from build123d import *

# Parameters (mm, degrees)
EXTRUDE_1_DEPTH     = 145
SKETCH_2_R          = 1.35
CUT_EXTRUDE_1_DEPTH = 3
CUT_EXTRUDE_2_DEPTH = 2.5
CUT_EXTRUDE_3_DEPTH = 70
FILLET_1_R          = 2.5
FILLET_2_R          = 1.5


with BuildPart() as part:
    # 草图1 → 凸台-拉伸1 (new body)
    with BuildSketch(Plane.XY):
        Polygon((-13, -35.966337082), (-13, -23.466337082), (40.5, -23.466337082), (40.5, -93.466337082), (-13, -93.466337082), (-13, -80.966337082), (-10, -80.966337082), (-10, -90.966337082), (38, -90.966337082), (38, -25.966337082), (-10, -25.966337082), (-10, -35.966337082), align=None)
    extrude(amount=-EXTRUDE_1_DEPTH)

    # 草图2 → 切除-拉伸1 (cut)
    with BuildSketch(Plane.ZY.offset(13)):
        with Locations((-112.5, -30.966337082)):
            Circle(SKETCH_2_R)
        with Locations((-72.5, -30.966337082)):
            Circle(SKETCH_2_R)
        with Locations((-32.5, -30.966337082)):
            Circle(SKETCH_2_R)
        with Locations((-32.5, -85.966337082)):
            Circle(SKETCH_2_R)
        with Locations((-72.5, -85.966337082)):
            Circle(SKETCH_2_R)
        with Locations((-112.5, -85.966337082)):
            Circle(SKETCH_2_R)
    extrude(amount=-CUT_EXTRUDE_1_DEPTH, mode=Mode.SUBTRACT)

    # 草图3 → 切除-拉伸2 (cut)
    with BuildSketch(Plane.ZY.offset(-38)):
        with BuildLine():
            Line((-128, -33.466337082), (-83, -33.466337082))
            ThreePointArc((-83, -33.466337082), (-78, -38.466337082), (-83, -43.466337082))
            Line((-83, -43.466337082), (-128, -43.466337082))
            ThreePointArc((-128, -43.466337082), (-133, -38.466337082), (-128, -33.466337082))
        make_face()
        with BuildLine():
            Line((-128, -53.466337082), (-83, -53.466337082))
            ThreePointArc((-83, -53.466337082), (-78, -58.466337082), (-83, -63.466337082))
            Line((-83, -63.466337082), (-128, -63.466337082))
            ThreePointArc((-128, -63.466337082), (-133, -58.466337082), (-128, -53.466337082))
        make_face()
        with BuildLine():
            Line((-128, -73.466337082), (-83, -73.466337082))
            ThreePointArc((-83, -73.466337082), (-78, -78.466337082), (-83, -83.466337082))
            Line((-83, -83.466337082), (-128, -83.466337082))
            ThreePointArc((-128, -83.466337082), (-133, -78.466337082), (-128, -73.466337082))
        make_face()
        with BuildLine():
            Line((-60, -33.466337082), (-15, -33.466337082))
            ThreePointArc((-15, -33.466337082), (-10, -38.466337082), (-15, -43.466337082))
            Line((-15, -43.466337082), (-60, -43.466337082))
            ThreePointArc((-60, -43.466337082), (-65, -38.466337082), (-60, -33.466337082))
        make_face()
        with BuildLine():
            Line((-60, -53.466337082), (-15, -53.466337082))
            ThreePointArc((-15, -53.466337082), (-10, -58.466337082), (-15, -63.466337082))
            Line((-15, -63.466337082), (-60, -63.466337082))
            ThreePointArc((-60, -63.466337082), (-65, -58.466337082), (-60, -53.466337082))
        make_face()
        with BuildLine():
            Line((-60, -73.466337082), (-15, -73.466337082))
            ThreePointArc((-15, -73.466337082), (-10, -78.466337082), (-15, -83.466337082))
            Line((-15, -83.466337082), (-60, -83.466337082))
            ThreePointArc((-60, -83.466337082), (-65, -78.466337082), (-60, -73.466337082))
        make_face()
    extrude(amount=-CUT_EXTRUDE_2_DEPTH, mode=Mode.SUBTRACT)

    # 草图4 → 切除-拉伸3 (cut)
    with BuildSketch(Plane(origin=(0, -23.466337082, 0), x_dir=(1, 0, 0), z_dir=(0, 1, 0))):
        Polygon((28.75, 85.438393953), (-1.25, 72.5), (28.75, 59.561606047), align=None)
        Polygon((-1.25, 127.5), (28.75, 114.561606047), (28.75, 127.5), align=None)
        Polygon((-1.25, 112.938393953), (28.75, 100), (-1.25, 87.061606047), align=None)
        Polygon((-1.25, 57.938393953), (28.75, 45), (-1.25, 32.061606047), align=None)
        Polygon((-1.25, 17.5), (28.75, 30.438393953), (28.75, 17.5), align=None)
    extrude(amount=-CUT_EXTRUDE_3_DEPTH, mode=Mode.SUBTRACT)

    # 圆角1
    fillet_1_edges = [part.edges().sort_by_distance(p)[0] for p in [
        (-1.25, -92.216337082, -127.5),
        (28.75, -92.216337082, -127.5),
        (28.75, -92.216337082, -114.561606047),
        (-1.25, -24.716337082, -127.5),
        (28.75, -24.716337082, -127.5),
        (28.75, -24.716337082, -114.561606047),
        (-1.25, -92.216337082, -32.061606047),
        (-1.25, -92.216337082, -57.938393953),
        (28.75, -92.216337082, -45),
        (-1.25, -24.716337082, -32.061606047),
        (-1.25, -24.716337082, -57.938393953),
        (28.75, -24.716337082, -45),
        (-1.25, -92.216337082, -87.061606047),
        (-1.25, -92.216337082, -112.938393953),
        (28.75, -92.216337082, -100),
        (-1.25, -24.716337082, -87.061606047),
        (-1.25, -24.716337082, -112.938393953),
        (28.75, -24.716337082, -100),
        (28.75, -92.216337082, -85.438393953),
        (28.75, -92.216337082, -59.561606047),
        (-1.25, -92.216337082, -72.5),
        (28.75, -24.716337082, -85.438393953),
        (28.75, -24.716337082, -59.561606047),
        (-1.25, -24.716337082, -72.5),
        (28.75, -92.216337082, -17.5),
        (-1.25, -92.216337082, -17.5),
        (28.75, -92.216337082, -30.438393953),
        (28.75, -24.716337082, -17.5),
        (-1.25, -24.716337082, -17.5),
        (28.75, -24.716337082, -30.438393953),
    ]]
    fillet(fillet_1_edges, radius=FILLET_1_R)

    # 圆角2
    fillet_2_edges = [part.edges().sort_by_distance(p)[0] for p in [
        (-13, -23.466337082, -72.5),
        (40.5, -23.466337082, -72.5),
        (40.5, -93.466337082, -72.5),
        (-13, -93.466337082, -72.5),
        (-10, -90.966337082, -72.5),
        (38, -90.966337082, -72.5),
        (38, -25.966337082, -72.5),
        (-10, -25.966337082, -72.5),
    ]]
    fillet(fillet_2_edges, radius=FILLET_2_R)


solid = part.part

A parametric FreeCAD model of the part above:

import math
import FreeCAD as App
import Part
import Sketcher
Q = App.Units.Quantity


def edges_at(feature, points):
    """Names of the edges that pass closest to the given points."""
    edges = feature.Shape.Edges
    near = lambda p: min(range(len(edges)), key=lambda i: edges[i].distToShape(Part.Vertex(*p))[0])
    return sorted({f"Edge{near(p) + 1}" for p in points})

doc = App.newDocument("Part")
body = doc.addObject("PartDesign::Body", "Body")

# Sketch on XY plane
sketch1 = body.newObject("Sketcher::SketchObject", "Sketch")
sketch1.AttachmentSupport = (doc.getObject("XY_Plane"), [""])
sketch1.MapMode = "FlatFace"
sketch1.addGeometry(Part.LineSegment(App.Vector(-13, -23.5, 0), App.Vector(-13, -36, 0)), False)
sketch1.addGeometry(Part.LineSegment(App.Vector(-13, -36, 0), App.Vector(-10, -36, 0)), False)
sketch1.addGeometry(Part.LineSegment(App.Vector(-10, -36, 0), App.Vector(-10, -26, 0)), False)
sketch1.addGeometry(Part.LineSegment(App.Vector(-10, -26, 0), App.Vector(38, -26, 0)), False)
sketch1.addGeometry(Part.LineSegment(App.Vector(38, -26, 0), App.Vector(38, -91, 0)), False)
sketch1.addGeometry(Part.LineSegment(App.Vector(38, -91, 0), App.Vector(-10, -91, 0)), False)
sketch1.addGeometry(Part.LineSegment(App.Vector(-10, -91, 0), App.Vector(-10, -81, 0)), False)
sketch1.addGeometry(Part.LineSegment(App.Vector(-10, -81, 0), App.Vector(-13, -81, 0)), False)
sketch1.addGeometry(Part.LineSegment(App.Vector(-13, -81, 0), App.Vector(-13, -93.5, 0)), False)
sketch1.addGeometry(Part.LineSegment(App.Vector(-13, -93.5, 0), App.Vector(40.5, -93.5, 0)), False)
sketch1.addGeometry(Part.LineSegment(App.Vector(40.5, -93.5, 0), App.Vector(40.5, -23.5, 0)), False)
sketch1.addGeometry(Part.LineSegment(App.Vector(40.5, -23.5, 0), App.Vector(-13, -23.5, 0)), False)
sketch1.addConstraint(Sketcher.Constraint("Coincident", 0, 2, 1, 1))
sketch1.addConstraint(Sketcher.Constraint("Coincident", 1, 2, 2, 1))
sketch1.addConstraint(Sketcher.Constraint("Coincident", 2, 2, 3, 1))
sketch1.addConstraint(Sketcher.Constraint("Coincident", 3, 2, 4, 1))
sketch1.addConstraint(Sketcher.Constraint("Coincident", 4, 2, 5, 1))
sketch1.addConstraint(Sketcher.Constraint("Coincident", 5, 2, 6, 1))
sketch1.addConstraint(Sketcher.Constraint("Coincident", 6, 2, 7, 1))
sketch1.addConstraint(Sketcher.Constraint("Coincident", 7, 2, 8, 1))
sketch1.addConstraint(Sketcher.Constraint("Coincident", 8, 2, 9, 1))
sketch1.addConstraint(Sketcher.Constraint("Coincident", 9, 2, 10, 1))
sketch1.addConstraint(Sketcher.Constraint("Coincident", 10, 2, 11, 1))
sketch1.addConstraint(Sketcher.Constraint("Coincident", 11, 2, 0, 1))
sketch1.addConstraint(Sketcher.Constraint("Vertical", 0))
sketch1.addConstraint(Sketcher.Constraint("Horizontal", 1))
sketch1.addConstraint(Sketcher.Constraint("Vertical", 2))
sketch1.addConstraint(Sketcher.Constraint("Horizontal", 3))
sketch1.addConstraint(Sketcher.Constraint("Vertical", 4))
sketch1.addConstraint(Sketcher.Constraint("Horizontal", 5))
sketch1.addConstraint(Sketcher.Constraint("Vertical", 6))
sketch1.addConstraint(Sketcher.Constraint("Horizontal", 7))
sketch1.addConstraint(Sketcher.Constraint("Vertical", 8))
sketch1.addConstraint(Sketcher.Constraint("Horizontal", 9))
sketch1.addConstraint(Sketcher.Constraint("Vertical", 10))
sketch1.addConstraint(Sketcher.Constraint("Horizontal", 11))
sketch1.addConstraint(Sketcher.Constraint("Vertical", 2, 2, 5, 2))
sketch1.addConstraint(Sketcher.Constraint("Vertical", 0, 2, 7, 2))
sketch1.addConstraint(Sketcher.Constraint("Equal", 2, 6))
sketch1.addConstraint(Sketcher.Constraint("Equal", 0, 8))
sketch1.addConstraint(Sketcher.Constraint("DistanceX", 1, 1, 1, 2, Q("3 mm")))
sketch1.addConstraint(Sketcher.Constraint("DistanceX", 3, 1, 3, 2, Q("48 mm")))
sketch1.addConstraint(Sketcher.Constraint("DistanceY", 2, 1, 2, 2, Q("10 mm")))
sketch1.addConstraint(Sketcher.Constraint("DistanceY", 4, 2, 4, 1, Q("65 mm")))
sketch1.addConstraint(Sketcher.Constraint("DistanceY", 10, 1, 10, 2, Q("70 mm")))
sketch1.addConstraint(Sketcher.Constraint("DistanceX", 9, 1, 9, 2, Q("53.5 mm")))
sketch1.addConstraint(Sketcher.Constraint("DistanceX", 0, 2, -1, 1, Q("13 mm")))
sketch1.addConstraint(Sketcher.Constraint("DistanceY", 0, 2, -1, 1, Q("35.966337 mm")))
pad1 = body.newObject("PartDesign::Pad", "Pad")
pad1.Profile = sketch1
pad1.Length = 145
pad1.Reversed = True

# Sketch on YZ plane
sketch2 = body.newObject("Sketcher::SketchObject", "Sketch001")
sketch2.AttachmentSupport = (doc.getObject("YZ_Plane"), [""])
sketch2.MapMode = "FlatFace"
sketch2.AttachmentOffset = App.Placement(App.Vector(0, 0, -13), App.Rotation())
sketch2.addGeometry(Part.Circle(App.Vector(-31, -112.5, 0), App.Vector(0, 0, 1), 1.4), False)
sketch2.addGeometry(Part.Circle(App.Vector(-31, -72.5, 0), App.Vector(0, 0, 1), 1.4), False)
sketch2.addGeometry(Part.Circle(App.Vector(-31, -32.5, 0), App.Vector(0, 0, 1), 1.4), False)
sketch2.addGeometry(Part.Circle(App.Vector(-86, -32.5, 0), App.Vector(0, 0, 1), 1.4), False)
sketch2.addGeometry(Part.Circle(App.Vector(-86, -72.5, 0), App.Vector(0, 0, 1), 1.4), False)
sketch2.addGeometry(Part.Circle(App.Vector(-86, -112.5, 0), App.Vector(0, 0, 1), 1.4), False)
sketch2.addConstraint(Sketcher.Constraint("Equal", 0, 1))
sketch2.addConstraint(Sketcher.Constraint("Equal", 1, 2))
sketch2.addConstraint(Sketcher.Constraint("Equal", 2, 3))
sketch2.addConstraint(Sketcher.Constraint("Equal", 3, 4))
sketch2.addConstraint(Sketcher.Constraint("Equal", 4, 5))
sketch2.addConstraint(Sketcher.Constraint("Horizontal", 2, 3, 3, 3))
sketch2.addConstraint(Sketcher.Constraint("Horizontal", 1, 3, 4, 3))
sketch2.addConstraint(Sketcher.Constraint("Horizontal", 0, 3, 5, 3))
sketch2.addConstraint(Sketcher.Constraint("Vertical", 0, 3, 1, 3))
sketch2.addConstraint(Sketcher.Constraint("Vertical", 1, 3, 2, 3))
sketch2.addConstraint(Sketcher.Constraint("Vertical", 3, 3, 4, 3))
sketch2.addConstraint(Sketcher.Constraint("Vertical", 4, 3, 5, 3))
sketch2.addConstraint(Sketcher.Constraint("Diameter", 0, Q("2.7 mm")))
sketch2.addConstraint(Sketcher.Constraint("DistanceY", 0, 3, 1, 3, Q("40 mm")))
sketch2.addConstraint(Sketcher.Constraint("DistanceY", 1, 3, 2, 3, Q("40 mm")))
sketch2.addConstraint(Sketcher.Constraint("DistanceX", 3, 3, 2, 3, Q("55 mm")))
sketch2.addConstraint(Sketcher.Constraint("DistanceY", 0, 3, -1, 1, Q("112.5 mm")))
sketch2.addConstraint(Sketcher.Constraint("DistanceX", 0, 3, -1, 1, Q("30.966337 mm")))
pocket1 = body.newObject("PartDesign::Pocket", "Pocket")
pocket1.Profile = sketch2
pocket1.Length = 3
pocket1.Reversed = True

# Sketch on YZ plane
sketch3 = body.newObject("Sketcher::SketchObject", "Sketch002")
sketch3.AttachmentSupport = (doc.getObject("YZ_Plane"), [""])
sketch3.MapMode = "FlatFace"
sketch3.AttachmentOffset = App.Placement(App.Vector(0, 0, 38), App.Rotation())
sketch3.addGeometry(Part.LineSegment(App.Vector(-33, -83, 0), App.Vector(-33, -128, 0)), False)
sketch3.addGeometry(Part.ArcOfCircle(Part.Circle(App.Vector(-38, -128, 0), App.Vector(0, 0, 1), 5), math.radians(180), math.radians(360)), False)
sketch3.addGeometry(Part.LineSegment(App.Vector(-43, -128, 0), App.Vector(-43, -83, 0)), False)
sketch3.addGeometry(Part.ArcOfCircle(Part.Circle(App.Vector(-38, -83, 0), App.Vector(0, 0, 1), 5), math.radians(0), math.radians(180)), False)
sketch3.addGeometry(Part.LineSegment(App.Vector(-53, -83, 0), App.Vector(-53, -128, 0)), False)
sketch3.addGeometry(Part.ArcOfCircle(Part.Circle(App.Vector(-58, -128, 0), App.Vector(0, 0, 1), 5), math.radians(180), math.radians(360)), False)
sketch3.addGeometry(Part.LineSegment(App.Vector(-63, -128, 0), App.Vector(-63, -83, 0)), False)
sketch3.addGeometry(Part.ArcOfCircle(Part.Circle(App.Vector(-58, -83, 0), App.Vector(0, 0, 1), 5), math.radians(0), math.radians(180)), False)
sketch3.addGeometry(Part.LineSegment(App.Vector(-73, -83, 0), App.Vector(-73, -128, 0)), False)
sketch3.addGeometry(Part.ArcOfCircle(Part.Circle(App.Vector(-78, -128, 0), App.Vector(0, 0, 1), 5), math.radians(180), math.radians(360)), False)
sketch3.addGeometry(Part.LineSegment(App.Vector(-83, -128, 0), App.Vector(-83, -83, 0)), False)
sketch3.addGeometry(Part.ArcOfCircle(Part.Circle(App.Vector(-78, -83, 0), App.Vector(0, 0, 1), 5), math.radians(0), math.radians(180)), False)
sketch3.addGeometry(Part.LineSegment(App.Vector(-33, -15, 0), App.Vector(-33, -60, 0)), False)
sketch3.addGeometry(Part.ArcOfCircle(Part.Circle(App.Vector(-38, -60, 0), App.Vector(0, 0, 1), 5), math.radians(180), math.radians(360)), False)
sketch3.addGeometry(Part.LineSegment(App.Vector(-43, -60, 0), App.Vector(-43, -15, 0)), False)
sketch3.addGeometry(Part.ArcOfCircle(Part.Circle(App.Vector(-38, -15, 0), App.Vector(0, 0, 1), 5), math.radians(0), math.radians(180)), False)
sketch3.addGeometry(Part.LineSegment(App.Vector(-53, -15, 0), App.Vector(-53, -60, 0)), False)
sketch3.addGeometry(Part.ArcOfCircle(Part.Circle(App.Vector(-58, -60, 0), App.Vector(0, 0, 1), 5), math.radians(180), math.radians(360)), False)
sketch3.addGeometry(Part.LineSegment(App.Vector(-63, -60, 0), App.Vector(-63, -15, 0)), False)
sketch3.addGeometry(Part.ArcOfCircle(Part.Circle(App.Vector(-58, -15, 0), App.Vector(0, 0, 1), 5), math.radians(0), math.radians(180)), False)
sketch3.addGeometry(Part.LineSegment(App.Vector(-73, -15, 0), App.Vector(-73, -60, 0)), False)
sketch3.addGeometry(Part.ArcOfCircle(Part.Circle(App.Vector(-78, -60, 0), App.Vector(0, 0, 1), 5), math.radians(180), math.radians(360)), False)
sketch3.addGeometry(Part.LineSegment(App.Vector(-83, -60, 0), App.Vector(-83, -15, 0)), False)
sketch3.addGeometry(Part.ArcOfCircle(Part.Circle(App.Vector(-78, -15, 0), App.Vector(0, 0, 1), 5), math.radians(0), math.radians(180)), False)
sketch3.addConstraint(Sketcher.Constraint("Tangent", 0, 2, 1, 2))
sketch3.addConstraint(Sketcher.Constraint("Tangent", 1, 1, 2, 1))
sketch3.addConstraint(Sketcher.Constraint("Tangent", 2, 2, 3, 2))
sketch3.addConstraint(Sketcher.Constraint("Tangent", 3, 1, 0, 1))
sketch3.addConstraint(Sketcher.Constraint("Tangent", 4, 2, 5, 2))
sketch3.addConstraint(Sketcher.Constraint("Tangent", 5, 1, 6, 1))
sketch3.addConstraint(Sketcher.Constraint("Tangent", 6, 2, 7, 2))
sketch3.addConstraint(Sketcher.Constraint("Tangent", 7, 1, 4, 1))
sketch3.addConstraint(Sketcher.Constraint("Tangent", 8, 2, 9, 2))
sketch3.addConstraint(Sketcher.Constraint("Tangent", 9, 1, 10, 1))
sketch3.addConstraint(Sketcher.Constraint("Tangent", 10, 2, 11, 2))
sketch3.addConstraint(Sketcher.Constraint("Tangent", 11, 1, 8, 1))
sketch3.addConstraint(Sketcher.Constraint("Tangent", 12, 2, 13, 2))
sketch3.addConstraint(Sketcher.Constraint("Tangent", 13, 1, 14, 1))
sketch3.addConstraint(Sketcher.Constraint("Tangent", 14, 2, 15, 2))
sketch3.addConstraint(Sketcher.Constraint("Tangent", 15, 1, 12, 1))
sketch3.addConstraint(Sketcher.Constraint("Tangent", 16, 2, 17, 2))
sketch3.addConstraint(Sketcher.Constraint("Tangent", 17, 1, 18, 1))
sketch3.addConstraint(Sketcher.Constraint("Tangent", 18, 2, 19, 2))
sketch3.addConstraint(Sketcher.Constraint("Tangent", 19, 1, 16, 1))
sketch3.addConstraint(Sketcher.Constraint("Tangent", 20, 2, 21, 2))
sketch3.addConstraint(Sketcher.Constraint("Tangent", 21, 1, 22, 1))
sketch3.addConstraint(Sketcher.Constraint("Tangent", 22, 2, 23, 2))
sketch3.addConstraint(Sketcher.Constraint("Tangent", 23, 1, 20, 1))
sketch3.addConstraint(Sketcher.Constraint("Vertical", 0))
sketch3.addConstraint(Sketcher.Constraint("Vertical", 2))
sketch3.addConstraint(Sketcher.Constraint("Vertical", 4))
sketch3.addConstraint(Sketcher.Constraint("Vertical", 6))
sketch3.addConstraint(Sketcher.Constraint("Vertical", 8))
sketch3.addConstraint(Sketcher.Constraint("Vertical", 10))
sketch3.addConstraint(Sketcher.Constraint("Vertical", 12))
sketch3.addConstraint(Sketcher.Constraint("Vertical", 14))
sketch3.addConstraint(Sketcher.Constraint("Vertical", 16))
sketch3.addConstraint(Sketcher.Constraint("Vertical", 18))
sketch3.addConstraint(Sketcher.Constraint("Vertical", 20))
sketch3.addConstraint(Sketcher.Constraint("Vertical", 22))
sketch3.addConstraint(Sketcher.Constraint("Equal", 3, 5))
sketch3.addConstraint(Sketcher.Constraint("Equal", 7, 9))
sketch3.addConstraint(Sketcher.Constraint("Equal", 11, 13))
sketch3.addConstraint(Sketcher.Constraint("Equal", 15, 17))
sketch3.addConstraint(Sketcher.Constraint("Equal", 19, 21))
sketch3.addConstraint(Sketcher.Constraint("Horizontal", 1, 3, 5, 3))
sketch3.addConstraint(Sketcher.Constraint("Horizontal", 3, 3, 7, 3))
sketch3.addConstraint(Sketcher.Constraint("Horizontal", 5, 3, 9, 3))
sketch3.addConstraint(Sketcher.Constraint("Horizontal", 7, 3, 11, 3))
sketch3.addConstraint(Sketcher.Constraint("Horizontal", 13, 3, 17, 3))
sketch3.addConstraint(Sketcher.Constraint("Horizontal", 15, 3, 19, 3))
sketch3.addConstraint(Sketcher.Constraint("Horizontal", 17, 3, 21, 3))
sketch3.addConstraint(Sketcher.Constraint("Horizontal", 19, 3, 23, 3))
sketch3.addConstraint(Sketcher.Constraint("Vertical", 3, 3, 13, 3))
sketch3.addConstraint(Sketcher.Constraint("Vertical", 7, 3, 17, 3))
sketch3.addConstraint(Sketcher.Constraint("Vertical", 11, 3, 21, 3))
sketch3.addConstraint(Sketcher.Constraint("Equal", 10, 12))
sketch3.addConstraint(Sketcher.Constraint("Radius", 1, Q("5 mm")))
sketch3.addConstraint(Sketcher.Constraint("DistanceY", 0, 2, 0, 1, Q("45 mm")))
sketch3.addConstraint(Sketcher.Constraint("DistanceY", 1, 3, -1, 1, Q("128 mm")))
sketch3.addConstraint(Sketcher.Constraint("DistanceY", 13, 3, -1, 1, Q("60 mm")))
sketch3.addConstraint(Sketcher.Constraint("DistanceX", 5, 3, 1, 3, Q("20 mm")))
sketch3.addConstraint(Sketcher.Constraint("DistanceX", 9, 3, 5, 3, Q("20 mm")))
sketch3.addConstraint(Sketcher.Constraint("DistanceX", 1, 3, -1, 1, Q("38.466337 mm")))
pocket2 = body.newObject("PartDesign::Pocket", "Pocket001")
pocket2.Profile = sketch3
pocket2.Length = 2.5
pocket2.Reversed = True

# Sketch on XZ plane
sketch4 = body.newObject("Sketcher::SketchObject", "Sketch003")
sketch4.AttachmentSupport = (doc.getObject("XZ_Plane"), [""])
sketch4.MapMode = "FlatFace"
sketch4.AttachmentOffset = App.Placement(App.Vector(0, 0, 23.466337), App.Rotation())
sketch4.addGeometry(Part.LineSegment(App.Vector(29, -85, 0), App.Vector(-1, -72, 0)), False)
sketch4.addGeometry(Part.LineSegment(App.Vector(-1, -72, 0), App.Vector(29, -60, 0)), False)
sketch4.addGeometry(Part.LineSegment(App.Vector(29, -60, 0), App.Vector(29, -85, 0)), False)
sketch4.addGeometry(Part.LineSegment(App.Vector(-1, -128, 0), App.Vector(29, -115, 0)), False)
sketch4.addGeometry(Part.LineSegment(App.Vector(29, -115, 0), App.Vector(29, -128, 0)), False)
sketch4.addGeometry(Part.LineSegment(App.Vector(29, -128, 0), App.Vector(-1, -128, 0)), False)
sketch4.addGeometry(Part.LineSegment(App.Vector(29, -100, 0), App.Vector(-1, -113, 0)), False)
sketch4.addGeometry(Part.LineSegment(App.Vector(-1, -113, 0), App.Vector(-1, -87, 0)), False)
sketch4.addGeometry(Part.LineSegment(App.Vector(-1, -87, 0), App.Vector(29, -100, 0)), False)
sketch4.addGeometry(Part.LineSegment(App.Vector(29, -45, 0), App.Vector(-1, -58, 0)), False)
sketch4.addGeometry(Part.LineSegment(App.Vector(-1, -58, 0), App.Vector(-1, -32, 0)), False)
sketch4.addGeometry(Part.LineSegment(App.Vector(-1, -32, 0), App.Vector(29, -45, 0)), False)
sketch4.addGeometry(Part.LineSegment(App.Vector(29, -30, 0), App.Vector(-1, -18, 0)), False)
sketch4.addGeometry(Part.LineSegment(App.Vector(-1, -18, 0), App.Vector(29, -18, 0)), False)
sketch4.addGeometry(Part.LineSegment(App.Vector(29, -18, 0), App.Vector(29, -30, 0)), False)
sketch4.addConstraint(Sketcher.Constraint("Coincident", 0, 2, 1, 1))
sketch4.addConstraint(Sketcher.Constraint("Coincident", 1, 2, 2, 1))
sketch4.addConstraint(Sketcher.Constraint("Coincident", 2, 2, 0, 1))
sketch4.addConstraint(Sketcher.Constraint("Coincident", 3, 2, 4, 1))
sketch4.addConstraint(Sketcher.Constraint("Coincident", 4, 2, 5, 1))
sketch4.addConstraint(Sketcher.Constraint("Coincident", 5, 2, 3, 1))
sketch4.addConstraint(Sketcher.Constraint("Coincident", 6, 2, 7, 1))
sketch4.addConstraint(Sketcher.Constraint("Coincident", 7, 2, 8, 1))
sketch4.addConstraint(Sketcher.Constraint("Coincident", 8, 2, 6, 1))
sketch4.addConstraint(Sketcher.Constraint("Coincident", 9, 2, 10, 1))
sketch4.addConstraint(Sketcher.Constraint("Coincident", 10, 2, 11, 1))
sketch4.addConstraint(Sketcher.Constraint("Coincident", 11, 2, 9, 1))
sketch4.addConstraint(Sketcher.Constraint("Coincident", 12, 2, 13, 1))
sketch4.addConstraint(Sketcher.Constraint("Coincident", 13, 2, 14, 1))
sketch4.addConstraint(Sketcher.Constraint("Coincident", 14, 2, 12, 1))
sketch4.addConstraint(Sketcher.Constraint("Vertical", 2))
sketch4.addConstraint(Sketcher.Constraint("Vertical", 4))
sketch4.addConstraint(Sketcher.Constraint("Horizontal", 5))
sketch4.addConstraint(Sketcher.Constraint("Vertical", 7))
sketch4.addConstraint(Sketcher.Constraint("Vertical", 10))
sketch4.addConstraint(Sketcher.Constraint("Horizontal", 13))
sketch4.addConstraint(Sketcher.Constraint("Vertical", 14))
sketch4.addConstraint(Sketcher.Constraint("Parallel", 1, 3))
sketch4.addConstraint(Sketcher.Constraint("Parallel", 3, 6))
sketch4.addConstraint(Sketcher.Constraint("Parallel", 0, 8))
sketch4.addConstraint(Sketcher.Constraint("Parallel", 6, 9))
sketch4.addConstraint(Sketcher.Constraint("Parallel", 8, 11))
sketch4.addConstraint(Sketcher.Constraint("Parallel", 11, 12))
sketch4.addConstraint(Sketcher.Constraint("Vertical", 2, 2, 3, 2))
sketch4.addConstraint(Sketcher.Constraint("Vertical", 0, 2, 5, 2))
sketch4.addConstraint(Sketcher.Constraint("Vertical", 5, 2, 6, 2))
sketch4.addConstraint(Sketcher.Constraint("Vertical", 4, 2, 8, 2))
sketch4.addConstraint(Sketcher.Constraint("Vertical", 7, 2, 9, 2))
sketch4.addConstraint(Sketcher.Constraint("Vertical", 8, 2, 11, 2))
sketch4.addConstraint(Sketcher.Constraint("Vertical", 10, 2, 12, 2))
sketch4.addConstraint(Sketcher.Constraint("Vertical", 11, 2, 13, 2))
sketch4.addConstraint(Sketcher.Constraint("Equal", 4, 14))
sketch4.addConstraint(Sketcher.Constraint("DistanceX", 5, 2, 5, 1, Q("30 mm")))
sketch4.addConstraint(Sketcher.Constraint("DistanceY", 8, 2, -1, 1, Q("100 mm")))
sketch4.addConstraint(Sketcher.Constraint("DistanceY", 11, 2, -1, 1, Q("45 mm")))
sketch4.addConstraint(Sketcher.Constraint("DistanceY", 3, 2, 1, 2, Q("55 mm")))
sketch4.addConstraint(Sketcher.Constraint("DistanceY", 0, 2, 12, 2, Q("55 mm")))
sketch4.addConstraint(Sketcher.Constraint("DistanceY", 0, 2, -1, 1, Q("72.5 mm")))
sketch4.addConstraint(Sketcher.Constraint("DistanceX", 0, 2, -1, 1, Q("1.25 mm")))
sketch4.addConstraint(Sketcher.Constraint("Distance", 0, Q("32.671119 mm")))
pocket3 = body.newObject("PartDesign::Pocket", "Pocket002")
pocket3.Profile = sketch4
pocket3.Length = 70
pocket3.Reversed = True
doc.recompute()

fillet = body.newObject("PartDesign::Fillet", "Fillet")
fillet.Base = (pocket3, edges_at(pocket3, [
    (-1.25, -92.216, -127.5),
    (28.75, -92.216, -127.5),
    (28.75, -92.216, -114.562),
    (-1.25, -24.716, -127.5),
    (28.75, -24.716, -127.5),
    (28.75, -24.716, -114.562),
    (-1.25, -92.216, -32.062),
    (-1.25, -92.216, -57.938),
    (28.75, -92.216, -45),
    (-1.25, -24.716, -32.062),
    (-1.25, -24.716, -57.938),
    (28.75, -24.716, -45),
    (-1.25, -92.216, -87.062),
    (-1.25, -92.216, -112.938),
    (28.75, -92.216, -100),
    (-1.25, -24.716, -87.062),
    (-1.25, -24.716, -112.938),
    (28.75, -24.716, -100),
    (28.75, -92.216, -85.438),
    (28.75, -92.216, -59.562),
    (-1.25, -92.216, -72.5),
    (28.75, -24.716, -85.438),
    (28.75, -24.716, -59.562),
    (-1.25, -24.716, -72.5),
    (28.75, -92.216, -17.5),
    (-1.25, -92.216, -17.5),
    (28.75, -92.216, -30.438),
    (28.75, -24.716, -17.5),
    (-1.25, -24.716, -17.5),
    (28.75, -24.716, -30.438),
]))
fillet.Radius = 2.5
doc.recompute()

fillet2 = body.newObject("PartDesign::Fillet", "Fillet001")
fillet2.Base = (fillet, edges_at(fillet, [
    (-13, -23.466, -72.5),
    (40.5, -23.466, -72.5),
    (40.5, -93.466, -72.5),
    (-13, -93.466, -72.5),
    (-10, -90.966, -72.5),
    (38, -90.966, -72.5),
    (38, -25.966, -72.5),
    (-10, -25.966, -72.5),
]))
fillet2.Radius = 1.5

doc.recompute()
